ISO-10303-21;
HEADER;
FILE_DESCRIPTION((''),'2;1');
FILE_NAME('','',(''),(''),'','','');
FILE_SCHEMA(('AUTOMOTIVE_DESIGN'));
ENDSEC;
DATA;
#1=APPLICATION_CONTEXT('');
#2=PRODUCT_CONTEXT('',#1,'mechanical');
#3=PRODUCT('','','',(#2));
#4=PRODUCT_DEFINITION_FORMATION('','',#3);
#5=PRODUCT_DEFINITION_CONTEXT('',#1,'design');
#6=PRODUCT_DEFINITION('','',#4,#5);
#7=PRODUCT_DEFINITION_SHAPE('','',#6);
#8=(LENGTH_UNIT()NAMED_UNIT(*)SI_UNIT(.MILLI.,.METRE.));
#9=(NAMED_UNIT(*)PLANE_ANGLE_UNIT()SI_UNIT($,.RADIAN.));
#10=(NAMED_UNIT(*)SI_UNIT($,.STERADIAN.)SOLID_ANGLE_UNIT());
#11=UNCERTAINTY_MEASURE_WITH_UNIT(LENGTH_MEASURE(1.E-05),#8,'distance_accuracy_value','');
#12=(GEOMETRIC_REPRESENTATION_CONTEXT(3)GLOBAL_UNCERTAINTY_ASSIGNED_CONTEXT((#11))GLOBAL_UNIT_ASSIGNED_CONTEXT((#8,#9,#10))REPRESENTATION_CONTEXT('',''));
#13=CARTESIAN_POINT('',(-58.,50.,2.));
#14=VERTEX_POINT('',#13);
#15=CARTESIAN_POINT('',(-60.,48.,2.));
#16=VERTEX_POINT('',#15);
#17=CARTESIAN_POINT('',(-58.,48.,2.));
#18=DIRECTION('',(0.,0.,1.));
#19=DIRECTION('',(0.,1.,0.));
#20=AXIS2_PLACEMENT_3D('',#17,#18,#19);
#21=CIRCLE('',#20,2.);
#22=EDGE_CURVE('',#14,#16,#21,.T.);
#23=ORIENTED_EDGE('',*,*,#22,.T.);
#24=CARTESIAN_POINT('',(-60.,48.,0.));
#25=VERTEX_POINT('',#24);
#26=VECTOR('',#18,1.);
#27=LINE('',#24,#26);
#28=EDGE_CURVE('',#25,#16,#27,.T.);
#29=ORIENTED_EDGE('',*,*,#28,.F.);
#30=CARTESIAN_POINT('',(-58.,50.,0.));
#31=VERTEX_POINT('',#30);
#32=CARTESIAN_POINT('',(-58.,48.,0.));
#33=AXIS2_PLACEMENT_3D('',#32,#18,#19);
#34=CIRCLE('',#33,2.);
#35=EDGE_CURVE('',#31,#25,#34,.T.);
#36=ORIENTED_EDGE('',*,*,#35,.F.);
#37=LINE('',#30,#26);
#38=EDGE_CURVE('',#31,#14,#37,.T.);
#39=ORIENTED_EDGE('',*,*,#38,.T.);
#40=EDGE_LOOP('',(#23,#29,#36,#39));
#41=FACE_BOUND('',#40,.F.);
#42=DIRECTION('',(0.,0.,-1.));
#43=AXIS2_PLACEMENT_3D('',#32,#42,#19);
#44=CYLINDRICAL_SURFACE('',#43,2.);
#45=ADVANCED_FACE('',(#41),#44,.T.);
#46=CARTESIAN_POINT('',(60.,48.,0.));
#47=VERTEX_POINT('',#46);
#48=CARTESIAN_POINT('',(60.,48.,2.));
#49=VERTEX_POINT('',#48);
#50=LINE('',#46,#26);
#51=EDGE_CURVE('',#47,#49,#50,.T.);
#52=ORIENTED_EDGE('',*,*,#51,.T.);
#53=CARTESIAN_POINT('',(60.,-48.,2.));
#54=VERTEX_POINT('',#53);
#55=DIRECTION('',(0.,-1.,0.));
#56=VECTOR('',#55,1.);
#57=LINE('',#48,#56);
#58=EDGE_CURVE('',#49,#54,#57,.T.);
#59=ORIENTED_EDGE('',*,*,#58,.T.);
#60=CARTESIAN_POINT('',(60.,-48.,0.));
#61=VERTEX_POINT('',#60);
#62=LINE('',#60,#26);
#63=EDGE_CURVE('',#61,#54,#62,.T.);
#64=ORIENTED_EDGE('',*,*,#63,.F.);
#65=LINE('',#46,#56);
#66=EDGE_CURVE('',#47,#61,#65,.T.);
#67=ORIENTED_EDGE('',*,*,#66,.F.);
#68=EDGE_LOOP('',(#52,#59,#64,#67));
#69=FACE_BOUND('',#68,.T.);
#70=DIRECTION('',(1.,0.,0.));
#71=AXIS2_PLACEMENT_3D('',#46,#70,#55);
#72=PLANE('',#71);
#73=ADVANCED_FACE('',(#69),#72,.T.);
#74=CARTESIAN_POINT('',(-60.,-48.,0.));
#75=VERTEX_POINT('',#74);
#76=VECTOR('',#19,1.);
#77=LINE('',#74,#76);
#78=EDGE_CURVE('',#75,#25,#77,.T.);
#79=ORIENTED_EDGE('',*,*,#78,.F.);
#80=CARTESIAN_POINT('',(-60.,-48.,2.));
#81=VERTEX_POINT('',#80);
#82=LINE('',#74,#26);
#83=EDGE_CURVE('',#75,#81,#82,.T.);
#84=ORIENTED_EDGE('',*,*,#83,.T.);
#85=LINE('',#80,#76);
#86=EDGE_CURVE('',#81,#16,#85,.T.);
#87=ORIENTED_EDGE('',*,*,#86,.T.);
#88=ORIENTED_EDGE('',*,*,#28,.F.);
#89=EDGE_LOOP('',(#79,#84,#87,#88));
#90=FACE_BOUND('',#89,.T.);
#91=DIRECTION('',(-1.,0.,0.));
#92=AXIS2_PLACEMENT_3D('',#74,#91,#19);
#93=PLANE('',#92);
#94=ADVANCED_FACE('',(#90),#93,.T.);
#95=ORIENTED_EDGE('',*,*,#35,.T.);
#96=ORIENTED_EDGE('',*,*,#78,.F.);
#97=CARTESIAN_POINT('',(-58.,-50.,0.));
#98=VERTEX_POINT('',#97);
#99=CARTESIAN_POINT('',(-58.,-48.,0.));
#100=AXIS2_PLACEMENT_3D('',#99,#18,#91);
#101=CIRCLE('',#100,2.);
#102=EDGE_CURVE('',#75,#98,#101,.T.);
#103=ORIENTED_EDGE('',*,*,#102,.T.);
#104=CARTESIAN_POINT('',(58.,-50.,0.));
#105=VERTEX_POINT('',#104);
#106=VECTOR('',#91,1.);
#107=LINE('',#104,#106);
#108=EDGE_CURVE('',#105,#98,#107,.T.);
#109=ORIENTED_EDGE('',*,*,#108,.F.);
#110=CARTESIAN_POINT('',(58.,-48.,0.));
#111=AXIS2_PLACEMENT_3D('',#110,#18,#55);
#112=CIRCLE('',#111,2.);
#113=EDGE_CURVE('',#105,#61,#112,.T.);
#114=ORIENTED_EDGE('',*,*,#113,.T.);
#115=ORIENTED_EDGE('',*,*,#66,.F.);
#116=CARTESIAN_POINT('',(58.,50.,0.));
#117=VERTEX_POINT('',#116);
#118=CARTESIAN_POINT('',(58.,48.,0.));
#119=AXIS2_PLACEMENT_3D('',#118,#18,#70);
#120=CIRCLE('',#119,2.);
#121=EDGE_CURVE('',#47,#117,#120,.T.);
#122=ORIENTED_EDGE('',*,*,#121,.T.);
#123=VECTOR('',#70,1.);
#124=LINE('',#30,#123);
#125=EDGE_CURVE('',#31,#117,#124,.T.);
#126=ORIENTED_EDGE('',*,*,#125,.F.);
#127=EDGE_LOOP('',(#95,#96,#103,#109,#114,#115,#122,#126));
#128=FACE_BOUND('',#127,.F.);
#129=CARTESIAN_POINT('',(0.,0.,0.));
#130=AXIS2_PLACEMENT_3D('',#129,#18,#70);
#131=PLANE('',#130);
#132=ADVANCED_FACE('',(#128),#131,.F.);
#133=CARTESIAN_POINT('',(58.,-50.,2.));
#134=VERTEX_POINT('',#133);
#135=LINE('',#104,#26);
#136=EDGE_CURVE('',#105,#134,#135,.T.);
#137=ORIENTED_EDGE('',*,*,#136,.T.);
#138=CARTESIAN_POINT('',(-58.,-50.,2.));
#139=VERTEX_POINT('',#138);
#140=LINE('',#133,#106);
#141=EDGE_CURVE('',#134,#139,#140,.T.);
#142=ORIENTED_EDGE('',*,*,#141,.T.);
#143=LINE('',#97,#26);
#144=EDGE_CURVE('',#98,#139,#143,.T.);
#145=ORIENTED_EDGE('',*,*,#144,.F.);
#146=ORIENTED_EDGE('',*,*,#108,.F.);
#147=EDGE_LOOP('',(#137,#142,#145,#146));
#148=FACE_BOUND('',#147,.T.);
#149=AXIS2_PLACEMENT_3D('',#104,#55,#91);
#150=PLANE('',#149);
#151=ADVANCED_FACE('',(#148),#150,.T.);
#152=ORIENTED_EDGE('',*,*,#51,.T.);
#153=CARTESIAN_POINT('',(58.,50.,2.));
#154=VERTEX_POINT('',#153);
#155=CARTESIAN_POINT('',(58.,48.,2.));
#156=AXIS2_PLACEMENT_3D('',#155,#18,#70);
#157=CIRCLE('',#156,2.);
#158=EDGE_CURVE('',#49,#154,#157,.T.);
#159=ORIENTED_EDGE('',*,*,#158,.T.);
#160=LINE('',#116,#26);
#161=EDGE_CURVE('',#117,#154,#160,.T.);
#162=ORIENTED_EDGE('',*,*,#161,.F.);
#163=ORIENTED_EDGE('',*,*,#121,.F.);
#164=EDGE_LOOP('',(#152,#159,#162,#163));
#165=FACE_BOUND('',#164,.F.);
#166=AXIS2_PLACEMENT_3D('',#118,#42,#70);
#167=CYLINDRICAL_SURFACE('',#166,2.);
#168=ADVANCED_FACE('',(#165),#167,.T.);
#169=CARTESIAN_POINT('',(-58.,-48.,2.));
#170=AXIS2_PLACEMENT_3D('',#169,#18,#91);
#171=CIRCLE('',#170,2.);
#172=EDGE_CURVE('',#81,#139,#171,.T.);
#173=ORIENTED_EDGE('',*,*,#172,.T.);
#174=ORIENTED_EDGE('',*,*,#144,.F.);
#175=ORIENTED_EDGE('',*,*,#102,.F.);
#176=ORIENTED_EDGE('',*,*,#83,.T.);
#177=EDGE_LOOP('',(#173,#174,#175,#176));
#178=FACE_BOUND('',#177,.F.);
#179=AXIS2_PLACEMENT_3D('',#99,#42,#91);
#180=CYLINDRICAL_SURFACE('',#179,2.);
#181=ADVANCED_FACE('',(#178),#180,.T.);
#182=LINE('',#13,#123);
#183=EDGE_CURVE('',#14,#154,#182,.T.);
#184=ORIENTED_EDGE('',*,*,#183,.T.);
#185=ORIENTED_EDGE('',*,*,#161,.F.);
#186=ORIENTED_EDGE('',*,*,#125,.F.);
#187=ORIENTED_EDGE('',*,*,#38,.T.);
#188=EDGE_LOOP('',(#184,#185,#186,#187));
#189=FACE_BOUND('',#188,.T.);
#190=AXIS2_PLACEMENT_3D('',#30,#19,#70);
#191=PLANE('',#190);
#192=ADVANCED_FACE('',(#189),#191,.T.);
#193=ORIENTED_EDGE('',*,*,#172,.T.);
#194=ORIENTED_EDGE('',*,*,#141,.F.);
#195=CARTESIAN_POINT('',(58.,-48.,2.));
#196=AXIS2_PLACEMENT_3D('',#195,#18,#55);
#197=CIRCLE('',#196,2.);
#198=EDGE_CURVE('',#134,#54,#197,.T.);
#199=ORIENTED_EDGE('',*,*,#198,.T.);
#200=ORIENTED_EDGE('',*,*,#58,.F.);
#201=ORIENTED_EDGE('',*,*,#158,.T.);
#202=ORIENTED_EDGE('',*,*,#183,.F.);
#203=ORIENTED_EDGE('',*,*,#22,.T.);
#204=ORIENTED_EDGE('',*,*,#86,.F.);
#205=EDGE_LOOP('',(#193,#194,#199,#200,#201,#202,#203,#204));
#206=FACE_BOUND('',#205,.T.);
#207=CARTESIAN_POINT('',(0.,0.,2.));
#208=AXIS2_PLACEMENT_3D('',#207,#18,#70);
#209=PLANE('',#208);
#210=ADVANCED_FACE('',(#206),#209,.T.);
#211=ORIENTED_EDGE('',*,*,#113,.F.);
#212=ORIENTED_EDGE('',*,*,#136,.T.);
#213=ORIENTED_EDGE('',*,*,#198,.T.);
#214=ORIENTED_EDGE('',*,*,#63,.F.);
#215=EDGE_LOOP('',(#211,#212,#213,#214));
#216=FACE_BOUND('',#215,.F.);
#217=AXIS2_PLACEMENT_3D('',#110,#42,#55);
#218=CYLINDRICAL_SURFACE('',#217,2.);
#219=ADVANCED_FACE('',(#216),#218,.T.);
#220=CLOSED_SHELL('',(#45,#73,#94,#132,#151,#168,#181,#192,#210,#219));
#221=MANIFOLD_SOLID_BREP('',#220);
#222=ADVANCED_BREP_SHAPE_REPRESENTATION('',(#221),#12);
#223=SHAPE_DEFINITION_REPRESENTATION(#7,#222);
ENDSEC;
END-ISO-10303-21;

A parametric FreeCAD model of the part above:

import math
import FreeCAD as App
import Part
import Sketcher

V = App.Vector
Q = App.Units.Quantity

doc = App.newDocument("Part")
body = doc.addObject("PartDesign::Body", "Body")

# Sketch on XY plane
sketch1 = doc.addObject("Sketcher::SketchObject", "Sketch")
body.addObject(sketch1)
sketch1.AttachmentSupport = (doc.XY_Plane, [""])
sketch1.MapMode = "FlatFace"
sketch1.addGeometry(Part.LineSegment(V(58, 50, 0), V(-58, 50, 0)), False)
sketch1.addGeometry(Part.ArcOfCircle(Part.Circle(V(-58, 48, 0), V(0, 0, 1), 2), math.radians(90), math.radians(180)), False)
sketch1.addGeometry(Part.LineSegment(V(-60, 48, 0), V(-60, -48, 0)), False)
sketch1.addGeometry(Part.ArcOfCircle(Part.Circle(V(-58, -48, 0), V(0, 0, 1), 2), math.radians(180), math.radians(270)), False)
sketch1.addGeometry(Part.LineSegment(V(-58, -50, 0), V(58, -50, 0)), False)
sketch1.addGeometry(Part.ArcOfCircle(Part.Circle(V(58, -48, 0), V(0, 0, 1), 2), math.radians(-90), math.radians(0)), False)
sketch1.addGeometry(Part.LineSegment(V(60, -48, 0), V(60, 48, 0)), False)
sketch1.addGeometry(Part.ArcOfCircle(Part.Circle(V(58, 48, 0), V(0, 0, 1), 2), math.radians(0), math.radians(90)), False)
sketch1.addConstraint(Sketcher.Constraint("Tangent", 0, 2, 1, 1))
sketch1.addConstraint(Sketcher.Constraint("Tangent", 1, 2, 2, 1))
sketch1.addConstraint(Sketcher.Constraint("Tangent", 2, 2, 3, 1))
sketch1.addConstraint(Sketcher.Constraint("Tangent", 3, 2, 4, 1))
sketch1.addConstraint(Sketcher.Constraint("Tangent", 4, 2, 5, 1))
sketch1.addConstraint(Sketcher.Constraint("Tangent", 5, 2, 6, 1))
sketch1.addConstraint(Sketcher.Constraint("Tangent", 6, 2, 7, 1))
sketch1.addConstraint(Sketcher.Constraint("Tangent", 7, 2, 0, 1))
sketch1.addConstraint(Sketcher.Constraint("Horizontal", 0))
sketch1.addConstraint(Sketcher.Constraint("Vertical", 2))
sketch1.addConstraint(Sketcher.Constraint("Horizontal", 4))
sketch1.addConstraint(Sketcher.Constraint("Vertical", 6))
sketch1.addConstraint(Sketcher.Constraint("Equal", 1, 3))
sketch1.addConstraint(Sketcher.Constraint("Equal", 3, 5))
sketch1.addConstraint(Sketcher.Constraint("Equal", 5, 7))
sketch1.addConstraint(Sketcher.Constraint("Symmetric", 1, 3, 5, 3, -1, 1))
sketch1.addConstraint(Sketcher.Constraint("Radius", 1, Q("2 mm")))
sketch1.addConstraint(Sketcher.Constraint("DistanceY", 3, 2, 0, 2, Q("100 mm")))
sketch1.addConstraint(Sketcher.Constraint("DistanceX", 0, 2, 0, 1, Q("116 mm")))
pad1 = doc.addObject("PartDesign::Pad", "Pad")
body.addObject(pad1)
pad1.Profile = sketch1
pad1.Length = 2

doc.recompute()
